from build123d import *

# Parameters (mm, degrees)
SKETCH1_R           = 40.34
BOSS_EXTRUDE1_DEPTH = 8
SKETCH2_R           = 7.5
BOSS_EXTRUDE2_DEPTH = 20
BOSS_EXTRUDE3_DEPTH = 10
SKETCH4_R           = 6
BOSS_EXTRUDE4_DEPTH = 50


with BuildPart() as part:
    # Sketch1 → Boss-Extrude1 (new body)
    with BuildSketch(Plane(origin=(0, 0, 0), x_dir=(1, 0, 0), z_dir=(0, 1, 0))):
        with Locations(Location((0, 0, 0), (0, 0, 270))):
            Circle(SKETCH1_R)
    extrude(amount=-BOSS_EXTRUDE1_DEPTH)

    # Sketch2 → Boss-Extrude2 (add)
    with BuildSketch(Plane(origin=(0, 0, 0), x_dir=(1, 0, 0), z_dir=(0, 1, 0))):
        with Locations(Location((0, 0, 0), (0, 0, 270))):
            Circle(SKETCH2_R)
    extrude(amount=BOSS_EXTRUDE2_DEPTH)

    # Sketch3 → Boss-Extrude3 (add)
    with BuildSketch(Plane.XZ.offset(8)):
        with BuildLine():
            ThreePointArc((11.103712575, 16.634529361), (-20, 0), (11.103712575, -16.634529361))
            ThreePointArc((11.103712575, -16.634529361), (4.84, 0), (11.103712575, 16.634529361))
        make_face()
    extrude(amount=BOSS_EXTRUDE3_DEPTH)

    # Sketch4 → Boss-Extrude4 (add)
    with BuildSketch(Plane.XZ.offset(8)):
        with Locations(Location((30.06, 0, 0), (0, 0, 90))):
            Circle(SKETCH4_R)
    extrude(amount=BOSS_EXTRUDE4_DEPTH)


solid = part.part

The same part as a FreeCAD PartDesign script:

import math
import FreeCAD as App
import Part
import Sketcher
from FreeCAD import Vector

doc = App.newDocument("Part")
params = doc.addObject("Spreadsheet::Sheet", "Params")
for row, (alias, value) in enumerate([
    ("sketch1_diameter", "80.68 mm"),
    ("pad1_length", "8 mm"),
    ("sketch2_diameter", "15 mm"),
    ("pad2_length", "20 mm"),
    ("sketch3_radius", "20 mm"),
    ("sketch3_radius2", "25.22 mm"),
    ("pad3_length", "10 mm"),
    ("sketch4_diameter", "12 mm"),
    ("pad4_length", "50 mm"),
], start=1):
    params.set(f"A{row}", alias)
    params.set(f"B{row}", "=" + value)
    params.setAlias(f"B{row}", alias)

body = doc.addObject("PartDesign::Body", "Body")

# Sketch on XZ plane
sketch1 = body.newObject("Sketcher::SketchObject", "Sketch")
sketch1.AttachmentSupport = (doc.getObject("XZ_Plane"), [""])
sketch1.MapMode = "FlatFace"
sketch1.addGeometry(Part.Circle(Vector(0, 0, 0), Vector(0, 0, 1), 40), False)
sketch1.addConstraint(Sketcher.Constraint("Coincident", 0, 3, -1, 1))
sketch1.addConstraint(Sketcher.Constraint("Diameter", 0, 80.68))
sketch1.setExpression("Constraints[1]", "Params.sketch1_diameter")
pad1 = body.newObject("PartDesign::Pad", "Pad")
pad1.Profile = sketch1
pad1.setExpression("Length", "Params.pad1_length")

# Sketch on XZ plane
sketch2 = body.newObject("Sketcher::SketchObject", "Sketch001")
sketch2.AttachmentSupport = (doc.getObject("XZ_Plane"), [""])
sketch2.MapMode = "FlatFace"
sketch2.addGeometry(Part.Circle(Vector(0, 0, 0), Vector(0, 0, 1), 8), False)
sketch2.addConstraint(Sketcher.Constraint("Coincident", 0, 3, -1, 1))
sketch2.addConstraint(Sketcher.Constraint("Diameter", 0, 15.0))
sketch2.setExpression("Constraints[1]", "Params.sketch2_diameter")
pad2 = body.newObject("PartDesign::Pad", "Pad001")
pad2.Profile = sketch2
pad2.setExpression("Length", "Params.pad2_length")
pad2.Reversed = True

# Sketch on XZ plane
sketch3 = body.newObject("Sketcher::SketchObject", "Sketch002")
sketch3.AttachmentSupport = (doc.getObject("XZ_Plane"), [""])
sketch3.MapMode = "FlatFace"
sketch3.AttachmentOffset = App.Placement(Vector(0, 0, 8), App.Rotation())
sketch3.addGeometry(Part.ArcOfCircle(Part.Circle(Vector(0, 0, 0), Vector(0, 0, 1), 20), math.radians(56), math.radians(304)), False)
sketch3.addGeometry(Part.ArcOfCircle(Part.Circle(Vector(30, 0, 0), Vector(0, 0, 1), 25), math.radians(139), math.radians(221)), False)
sketch3.addConstraint(Sketcher.Constraint("Coincident", 0, 1, 1, 1))
sketch3.addConstraint(Sketcher.Constraint("Coincident", 1, 2, 0, 2))
sketch3.addConstraint(Sketcher.Constraint("Coincident", 0, 3, -1, 1))
sketch3.addConstraint(Sketcher.Constraint("PointOnObject", 1, 3, -1))
sketch3.addConstraint(Sketcher.Constraint("Radius", 0, 20.0))
sketch3.addConstraint(Sketcher.Constraint("Radius", 1, 25.22))
sketch3.addConstraint(Sketcher.Constraint("DistanceX", -1, 1, 1, 3, 30.06))
sketch3.setExpression("Constraints[4]", "Params.sketch3_radius")
sketch3.setExpression("Constraints[5]", "Params.sketch3_radius2")
pad3 = body.newObject("PartDesign::Pad", "Pad002")
pad3.Profile = sketch3
pad3.setExpression("Length", "Params.pad3_length")

# Sketch on XZ plane
sketch4 = body.newObject("Sketcher::SketchObject", "Sketch003")
sketch4.AttachmentSupport = (doc.getObject("XZ_Plane"), [""])
sketch4.MapMode = "FlatFace"
sketch4.AttachmentOffset = App.Placement(Vector(0, 0, 8), App.Rotation())
sketch4.addGeometry(Part.Circle(Vector(30, 0, 0), Vector(0, 0, 1), 6), False)
sketch4.addConstraint(Sketcher.Constraint("PointOnObject", 0, 3, -1))
sketch4.addConstraint(Sketcher.Constraint("Diameter", 0, 12.0))
sketch4.addConstraint(Sketcher.Constraint("DistanceX", -1, 1, 0, 3, 30.06))
sketch4.setExpression("Constraints[1]", "Params.sketch4_diameter")
pad4 = body.newObject("PartDesign::Pad", "Pad003")
pad4.Profile = sketch4
pad4.setExpression("Length", "Params.pad4_length")

doc.recompute()
